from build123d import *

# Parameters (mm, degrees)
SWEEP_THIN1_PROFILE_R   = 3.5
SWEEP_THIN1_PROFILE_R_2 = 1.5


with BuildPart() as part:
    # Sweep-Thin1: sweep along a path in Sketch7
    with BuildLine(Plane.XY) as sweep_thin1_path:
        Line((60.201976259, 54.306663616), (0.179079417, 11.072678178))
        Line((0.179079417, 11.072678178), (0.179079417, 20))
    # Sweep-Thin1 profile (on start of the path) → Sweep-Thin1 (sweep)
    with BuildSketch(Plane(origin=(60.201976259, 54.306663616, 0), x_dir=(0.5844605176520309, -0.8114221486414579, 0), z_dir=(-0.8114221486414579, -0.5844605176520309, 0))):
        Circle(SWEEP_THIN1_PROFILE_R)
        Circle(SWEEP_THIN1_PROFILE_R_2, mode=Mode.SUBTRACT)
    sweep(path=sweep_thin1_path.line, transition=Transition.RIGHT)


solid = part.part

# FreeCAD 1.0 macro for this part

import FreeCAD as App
import Part
import Sketcher

V = App.Vector

doc = App.newDocument("Part")
body = doc.addObject("PartDesign::Body", "Body")

# Sketch on an angled plane
sketch1 = body.newObject("Sketcher::SketchObject", "Sketch")
sketch1.Placement = App.Placement(V(60.201976, 54.306664, 0), App.Rotation(V(0.584460518, -0.811422149, 0), V(0, 0, 1.000000001), V(-0.811422149, -0.584460518, 0), "ZXY"))
sketch1.addGeometry(Part.Circle(V(0, 0, 0), V(0, 0, 1), 3.5), False)
sketch1.addGeometry(Part.Circle(V(0, 0, 0), V(0, 0, 1), 1.5), False)
sketch1.addConstraint(Sketcher.Constraint("Coincident", 0, 3, -1, 1))
sketch1.addConstraint(Sketcher.Constraint("Coincident", 1, 3, -1, 1))
sketch1.addConstraint(Sketcher.Constraint("Diameter", 0, 7.0))
sketch1.addConstraint(Sketcher.Constraint("Diameter", 1, 3.0))

# Sketch on XY plane
sketch2 = body.newObject("Sketcher::SketchObject", "Sketch001")
sketch2.AttachmentSupport = (doc.getObject("XY_Plane"), [""])
sketch2.MapMode = "FlatFace"
sketch2.addGeometry(Part.LineSegment(V(60, 54, 0), V(0, 11, 0)), False)
sketch2.addGeometry(Part.LineSegment(V(0, 11, 0), V(0, 20, 0)), False)
sketch2.addConstraint(Sketcher.Constraint("Coincident", 0, 2, 1, 1))
sketch2.addConstraint(Sketcher.Constraint("Vertical", 1))
sketch2.addConstraint(Sketcher.Constraint("DistanceY", -1, 1, 1, 2, 20.0))
sketch2.addConstraint(Sketcher.Constraint("DistanceY", 1, 1, 1, 2, 8.927322))
sketch2.addConstraint(Sketcher.Constraint("DistanceX", -1, 1, 0, 2, 0.179079))
sketch2.addConstraint(Sketcher.Constraint("Distance", 0, 73.972465))
sketch2.addConstraint(Sketcher.Constraint("DistanceX", -1, 1, 0, 1, 60.201976))
doc.recompute()

additivepipe = body.newObject("PartDesign::AdditivePipe", "AdditivePipe")
additivepipe.Profile = sketch1
additivepipe.Spine = (sketch2, ["Edge1", "Edge2"])
additivepipe.Transition = "Right corner"

doc.recompute()
